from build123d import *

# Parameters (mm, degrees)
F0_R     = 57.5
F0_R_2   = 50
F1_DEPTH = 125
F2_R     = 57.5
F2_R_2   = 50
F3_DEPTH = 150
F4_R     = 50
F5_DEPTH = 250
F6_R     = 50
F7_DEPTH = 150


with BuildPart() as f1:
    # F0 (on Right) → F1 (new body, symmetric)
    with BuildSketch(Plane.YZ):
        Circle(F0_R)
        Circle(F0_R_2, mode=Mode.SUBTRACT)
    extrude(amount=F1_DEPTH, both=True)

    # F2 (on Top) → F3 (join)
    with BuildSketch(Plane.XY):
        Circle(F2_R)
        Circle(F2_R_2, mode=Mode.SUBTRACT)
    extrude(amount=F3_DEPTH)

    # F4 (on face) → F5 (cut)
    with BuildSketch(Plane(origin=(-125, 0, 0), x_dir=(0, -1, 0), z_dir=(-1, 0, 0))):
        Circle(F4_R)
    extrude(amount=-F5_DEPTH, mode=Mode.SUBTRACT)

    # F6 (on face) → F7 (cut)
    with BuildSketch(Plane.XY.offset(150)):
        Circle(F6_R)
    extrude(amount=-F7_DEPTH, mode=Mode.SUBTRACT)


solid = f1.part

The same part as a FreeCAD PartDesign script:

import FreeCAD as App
import Part
import Sketcher

V = App.Vector
Q = App.Units.Quantity

doc = App.newDocument("Part")
params = doc.addObject("Spreadsheet::Sheet", "Params")
for row, (alias, value) in enumerate([
    ("sketch1_diameter", "115 mm"),
    ("sketch1_diameter2", "100 mm"),
    ("pad1_length", "250 mm"),
    ("sketch2_diameter", "115 mm"),
    ("sketch2_diameter2", "100 mm"),
    ("pad2_length", "150 mm"),
    ("sketch3_diameter", "100 mm"),
    ("pocket1_length", "250 mm"),
    ("sketch4_diameter", "100 mm"),
    ("pocket2_length", "150 mm"),
], start=1):
    params.set(f"A{row}", alias)
    params.set(f"B{row}", "=" + value)
    params.setAlias(f"B{row}", alias)

body = doc.addObject("PartDesign::Body", "Body")

sketch1 = body.newObject("Sketcher::SketchObject", "Sketch")
sketch1.AttachmentSupport = (doc.getObject("YZ_Plane"), [""])
sketch1.MapMode = "FlatFace"
sketch1.addGeometry([
    Part.Circle(V(0, 0, 0), V(0, 0, 1), 57.5),
    Part.Circle(V(0, 0, 0), V(0, 0, 1), 50),
], False)
sketch1.addConstraint([
    Sketcher.Constraint("Coincident", 0, 3, -1, 1),
    Sketcher.Constraint("Coincident", 1, 3, -1, 1),
    Sketcher.Constraint("Diameter", 0, Q("115 mm")),
    Sketcher.Constraint("Diameter", 1, Q("100 mm")),
])
sketch1.setExpression("Constraints[2]", "Params.sketch1_diameter")
sketch1.setExpression("Constraints[3]", "Params.sketch1_diameter2")
pad1 = body.newObject("PartDesign::Pad", "Pad")
pad1.Profile = sketch1
pad1.setExpression("Length", "Params.pad1_length")
pad1.Midplane = True

sketch2 = body.newObject("Sketcher::SketchObject", "Sketch001")
sketch2.AttachmentSupport = (doc.getObject("XY_Plane"), [""])
sketch2.MapMode = "FlatFace"
sketch2.addGeometry([
    Part.Circle(V(0, 0, 0), V(0, 0, 1), 57.5),
    Part.Circle(V(0, 0, 0), V(0, 0, 1), 50),
], False)
sketch2.addConstraint([
    Sketcher.Constraint("Coincident", 0, 3, -1, 1),
    Sketcher.Constraint("Coincident", 1, 3, -1, 1),
    Sketcher.Constraint("Diameter", 0, Q("115 mm")),
    Sketcher.Constraint("Diameter", 1, Q("100 mm")),
])
sketch2.setExpression("Constraints[2]", "Params.sketch2_diameter")
sketch2.setExpression("Constraints[3]", "Params.sketch2_diameter2")
pad2 = body.newObject("PartDesign::Pad", "Pad001")
pad2.Profile = sketch2
pad2.setExpression("Length", "Params.pad2_length")

sketch3 = body.newObject("Sketcher::SketchObject", "Sketch002")
sketch3.AttachmentSupport = (doc.getObject("YZ_Plane"), [""])
sketch3.MapMode = "FlatFace"
sketch3.AttachmentOffset = App.Placement(V(0, 0, -125), App.Rotation())
sketch3.addGeometry(Part.Circle(V(0, 0, 0), V(0, 0, 1), 50), False)
sketch3.addConstraint([
    Sketcher.Constraint("Coincident", 0, 3, -1, 1),
    Sketcher.Constraint("Diameter", 0, Q("100 mm")),
])
sketch3.setExpression("Constraints[1]", "Params.sketch3_diameter")
pocket1 = body.newObject("PartDesign::Pocket", "Pocket")
pocket1.Profile = sketch3
pocket1.setExpression("Length", "Params.pocket1_length")
pocket1.Reversed = True

sketch4 = body.newObject("Sketcher::SketchObject", "Sketch003")
sketch4.AttachmentSupport = (doc.getObject("XY_Plane"), [""])
sketch4.MapMode = "FlatFace"
sketch4.AttachmentOffset = App.Placement(V(0, 0, 150), App.Rotation())
sketch4.addGeometry(Part.Circle(V(0, 0, 0), V(0, 0, 1), 50), False)
sketch4.addConstraint([
    Sketcher.Constraint("Coincident", 0, 3, -1, 1),
    Sketcher.Constraint("Diameter", 0, Q("100 mm")),
])
sketch4.setExpression("Constraints[1]", "Params.sketch4_diameter")
pocket2 = body.newObject("PartDesign::Pocket", "Pocket001")
pocket2.Profile = sketch4
pocket2.setExpression("Length", "Params.pocket2_length")

doc.recompute()
